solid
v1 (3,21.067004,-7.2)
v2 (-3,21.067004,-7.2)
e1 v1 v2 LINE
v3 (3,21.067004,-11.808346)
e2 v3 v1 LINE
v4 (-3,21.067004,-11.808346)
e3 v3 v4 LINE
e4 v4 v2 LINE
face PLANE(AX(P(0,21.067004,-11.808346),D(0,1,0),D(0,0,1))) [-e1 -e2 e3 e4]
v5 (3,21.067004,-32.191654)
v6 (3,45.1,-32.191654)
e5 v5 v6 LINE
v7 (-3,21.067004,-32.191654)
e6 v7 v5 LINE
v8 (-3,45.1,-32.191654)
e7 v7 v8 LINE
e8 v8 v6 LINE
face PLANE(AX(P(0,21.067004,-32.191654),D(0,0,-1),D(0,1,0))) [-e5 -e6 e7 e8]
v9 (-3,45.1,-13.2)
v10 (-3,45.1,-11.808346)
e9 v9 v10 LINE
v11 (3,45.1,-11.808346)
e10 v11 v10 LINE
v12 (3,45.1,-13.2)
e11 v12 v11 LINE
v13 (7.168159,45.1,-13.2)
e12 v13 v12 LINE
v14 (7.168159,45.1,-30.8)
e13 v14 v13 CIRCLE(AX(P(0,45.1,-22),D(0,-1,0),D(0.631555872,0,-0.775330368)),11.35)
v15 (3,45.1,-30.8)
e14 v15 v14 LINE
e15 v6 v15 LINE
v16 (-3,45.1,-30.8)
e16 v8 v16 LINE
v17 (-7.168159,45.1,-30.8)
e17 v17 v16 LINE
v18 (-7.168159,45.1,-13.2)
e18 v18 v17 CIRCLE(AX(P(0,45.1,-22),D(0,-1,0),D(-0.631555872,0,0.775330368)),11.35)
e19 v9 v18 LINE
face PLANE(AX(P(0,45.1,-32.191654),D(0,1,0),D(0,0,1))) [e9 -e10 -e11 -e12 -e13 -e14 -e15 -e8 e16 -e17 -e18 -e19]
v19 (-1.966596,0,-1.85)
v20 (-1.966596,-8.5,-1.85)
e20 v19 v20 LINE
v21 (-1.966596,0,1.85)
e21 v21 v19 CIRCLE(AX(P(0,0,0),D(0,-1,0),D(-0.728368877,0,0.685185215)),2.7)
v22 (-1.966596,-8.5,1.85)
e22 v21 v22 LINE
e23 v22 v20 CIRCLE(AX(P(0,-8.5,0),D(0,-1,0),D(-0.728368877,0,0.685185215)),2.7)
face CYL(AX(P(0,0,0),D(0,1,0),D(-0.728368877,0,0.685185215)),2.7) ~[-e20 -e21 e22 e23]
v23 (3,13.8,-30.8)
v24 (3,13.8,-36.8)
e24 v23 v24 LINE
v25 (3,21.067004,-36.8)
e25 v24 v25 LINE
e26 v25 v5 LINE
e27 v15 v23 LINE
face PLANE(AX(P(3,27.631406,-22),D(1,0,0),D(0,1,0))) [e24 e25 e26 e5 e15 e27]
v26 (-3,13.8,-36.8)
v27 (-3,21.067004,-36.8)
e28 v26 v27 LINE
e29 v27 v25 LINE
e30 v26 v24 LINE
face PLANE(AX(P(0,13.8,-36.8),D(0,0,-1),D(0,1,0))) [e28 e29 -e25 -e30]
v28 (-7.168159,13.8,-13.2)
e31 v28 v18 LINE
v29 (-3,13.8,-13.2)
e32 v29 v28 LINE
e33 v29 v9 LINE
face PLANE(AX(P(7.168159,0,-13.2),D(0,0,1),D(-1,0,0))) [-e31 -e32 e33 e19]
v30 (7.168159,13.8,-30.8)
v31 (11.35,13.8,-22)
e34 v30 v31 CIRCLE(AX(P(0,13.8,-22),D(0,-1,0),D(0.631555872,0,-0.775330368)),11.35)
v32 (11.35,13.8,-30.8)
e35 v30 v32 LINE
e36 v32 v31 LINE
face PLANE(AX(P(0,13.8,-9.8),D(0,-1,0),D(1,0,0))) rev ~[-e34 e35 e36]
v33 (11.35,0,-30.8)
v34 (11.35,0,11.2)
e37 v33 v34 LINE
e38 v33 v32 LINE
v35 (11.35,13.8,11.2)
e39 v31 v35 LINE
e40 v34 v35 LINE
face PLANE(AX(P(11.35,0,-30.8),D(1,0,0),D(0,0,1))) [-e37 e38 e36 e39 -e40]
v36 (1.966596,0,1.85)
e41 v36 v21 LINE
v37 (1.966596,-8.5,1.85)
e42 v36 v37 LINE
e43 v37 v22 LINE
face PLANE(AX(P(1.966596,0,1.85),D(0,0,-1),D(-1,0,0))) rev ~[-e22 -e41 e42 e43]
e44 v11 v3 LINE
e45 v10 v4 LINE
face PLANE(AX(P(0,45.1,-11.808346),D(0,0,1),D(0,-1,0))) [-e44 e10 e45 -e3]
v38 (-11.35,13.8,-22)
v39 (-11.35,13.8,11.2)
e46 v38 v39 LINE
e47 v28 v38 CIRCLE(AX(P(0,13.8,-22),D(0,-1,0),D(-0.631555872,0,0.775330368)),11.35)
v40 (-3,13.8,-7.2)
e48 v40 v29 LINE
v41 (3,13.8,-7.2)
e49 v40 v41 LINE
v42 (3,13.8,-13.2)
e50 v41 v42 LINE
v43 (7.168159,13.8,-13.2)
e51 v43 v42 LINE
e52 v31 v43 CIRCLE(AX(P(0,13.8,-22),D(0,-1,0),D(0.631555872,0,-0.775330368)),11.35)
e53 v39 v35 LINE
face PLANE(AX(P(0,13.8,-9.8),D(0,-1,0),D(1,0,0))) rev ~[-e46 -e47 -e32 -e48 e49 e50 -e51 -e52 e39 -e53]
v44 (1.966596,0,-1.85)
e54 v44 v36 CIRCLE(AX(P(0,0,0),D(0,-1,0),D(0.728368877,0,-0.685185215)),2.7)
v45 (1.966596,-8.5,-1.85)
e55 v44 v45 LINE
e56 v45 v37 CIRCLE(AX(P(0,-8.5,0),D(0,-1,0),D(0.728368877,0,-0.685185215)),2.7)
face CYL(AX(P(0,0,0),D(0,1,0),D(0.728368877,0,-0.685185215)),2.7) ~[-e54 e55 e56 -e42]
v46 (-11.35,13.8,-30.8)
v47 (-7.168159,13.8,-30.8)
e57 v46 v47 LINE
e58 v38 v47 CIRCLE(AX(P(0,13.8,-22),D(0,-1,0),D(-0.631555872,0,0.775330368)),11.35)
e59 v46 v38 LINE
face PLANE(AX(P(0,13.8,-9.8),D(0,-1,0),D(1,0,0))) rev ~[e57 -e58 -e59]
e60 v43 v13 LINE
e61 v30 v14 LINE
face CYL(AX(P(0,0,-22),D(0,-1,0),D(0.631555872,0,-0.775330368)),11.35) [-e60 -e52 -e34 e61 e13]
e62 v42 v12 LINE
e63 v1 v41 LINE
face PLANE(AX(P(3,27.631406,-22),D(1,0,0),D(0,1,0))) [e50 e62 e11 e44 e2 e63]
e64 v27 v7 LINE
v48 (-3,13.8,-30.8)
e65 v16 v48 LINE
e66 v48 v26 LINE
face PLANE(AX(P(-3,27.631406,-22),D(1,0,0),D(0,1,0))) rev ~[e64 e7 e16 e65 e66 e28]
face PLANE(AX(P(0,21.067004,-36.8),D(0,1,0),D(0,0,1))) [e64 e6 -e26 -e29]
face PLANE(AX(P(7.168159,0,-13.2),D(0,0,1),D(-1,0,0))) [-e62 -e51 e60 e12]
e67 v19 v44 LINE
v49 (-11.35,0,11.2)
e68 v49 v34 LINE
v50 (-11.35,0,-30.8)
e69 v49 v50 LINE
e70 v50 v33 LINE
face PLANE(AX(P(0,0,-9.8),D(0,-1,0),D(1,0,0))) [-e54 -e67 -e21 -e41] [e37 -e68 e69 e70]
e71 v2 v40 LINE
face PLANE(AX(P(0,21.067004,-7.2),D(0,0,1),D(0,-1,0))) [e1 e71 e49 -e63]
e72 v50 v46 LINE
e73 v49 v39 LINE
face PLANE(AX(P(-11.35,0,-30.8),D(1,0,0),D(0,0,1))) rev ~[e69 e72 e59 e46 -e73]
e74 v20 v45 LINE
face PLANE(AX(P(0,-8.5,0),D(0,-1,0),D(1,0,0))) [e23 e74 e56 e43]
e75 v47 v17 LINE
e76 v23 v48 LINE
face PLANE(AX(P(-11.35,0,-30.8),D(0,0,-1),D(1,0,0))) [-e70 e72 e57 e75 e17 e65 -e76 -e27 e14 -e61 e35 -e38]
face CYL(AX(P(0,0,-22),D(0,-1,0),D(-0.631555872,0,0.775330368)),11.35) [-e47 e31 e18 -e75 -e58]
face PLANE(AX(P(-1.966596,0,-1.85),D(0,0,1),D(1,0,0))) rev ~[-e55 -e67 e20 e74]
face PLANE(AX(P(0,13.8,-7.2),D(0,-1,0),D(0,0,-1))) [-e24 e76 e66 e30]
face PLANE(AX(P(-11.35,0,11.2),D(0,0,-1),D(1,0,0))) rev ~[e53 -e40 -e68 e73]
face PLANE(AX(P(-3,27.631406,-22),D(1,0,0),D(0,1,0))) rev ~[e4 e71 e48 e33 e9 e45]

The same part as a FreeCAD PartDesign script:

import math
import FreeCAD as App
import Part
import Sketcher

V = App.Vector
Q = App.Units.Quantity

doc = App.newDocument("Part")
body = doc.addObject("PartDesign::Body", "Body")

# Sketch on XZ plane
sketch1 = body.newObject("Sketcher::SketchObject", "Sketch")
sketch1.AttachmentSupport = (doc.getObject("XZ_Plane"), [""])
sketch1.MapMode = "FlatFace"
sketch1.addGeometry([
    Part.LineSegment(V(-11, 11, 0), V(-11, -31, 0)),
    Part.LineSegment(V(-11, -31, 0), V(11, -31, 0)),
    Part.LineSegment(V(11, -31, 0), V(11, 11, 0)),
    Part.LineSegment(V(11, 11, 0), V(-11, 11, 0)),
], False)
sketch1.addConstraint([
    Sketcher.Constraint("Coincident", 0, 2, 1, 1),
    Sketcher.Constraint("Coincident", 1, 2, 2, 1),
    Sketcher.Constraint("Coincident", 2, 2, 3, 1),
    Sketcher.Constraint("Coincident", 3, 2, 0, 1),
    Sketcher.Constraint("Vertical", 0),
    Sketcher.Constraint("Horizontal", 1),
    Sketcher.Constraint("Vertical", 2),
    Sketcher.Constraint("Horizontal", 3),
    Sketcher.Constraint("DistanceY", 0, 2, 0, 1, Q("42 mm")),
    Sketcher.Constraint("DistanceX", 1, 1, 1, 2, Q("22.7 mm")),
    Sketcher.Constraint("DistanceY", 0, 2, -1, 1, Q("30.8 mm")),
    Sketcher.Constraint("DistanceX", 0, 2, -1, 1, Q("11.35 mm")),
])
pad1 = body.newObject("PartDesign::Pad", "Pad")
pad1.Profile = sketch1
pad1.Length = 13.8
pad1.Reversed = True

# Sketch on XZ plane
sketch2 = body.newObject("Sketcher::SketchObject", "Sketch001")
sketch2.AttachmentSupport = (doc.getObject("XZ_Plane"), [""])
sketch2.MapMode = "FlatFace"
sketch2.addGeometry([
    Part.LineSegment(V(2, 1.9, 0), V(-2, 1.9, 0)),
    Part.ArcOfCircle(Part.Circle(V(0, 0, 0), V(0, 0, 1), 2.7), math.radians(137), math.radians(223)),
    Part.LineSegment(V(-2, -1.9, 0), V(2, -1.9, 0)),
    Part.ArcOfCircle(Part.Circle(V(0, 0, 0), V(0, 0, 1), 2.7), math.radians(-43), math.radians(43)),
], False)
sketch2.addConstraint([
    Sketcher.Constraint("Coincident", 0, 2, 1, 1),
    Sketcher.Constraint("Coincident", 1, 2, 2, 1),
    Sketcher.Constraint("Coincident", 2, 2, 3, 1),
    Sketcher.Constraint("Coincident", 3, 2, 0, 1),
    Sketcher.Constraint("Horizontal", 0),
    Sketcher.Constraint("Horizontal", 2),
    Sketcher.Constraint("Coincident", 1, 3, -1, 1),
    Sketcher.Constraint("Coincident", 3, 3, -1, 1),
    Sketcher.Constraint("Equal", 1, 3),
    Sketcher.Constraint("Vertical", 0, 2, 1, 2),
    Sketcher.Constraint("Radius", 1, Q("2.7 mm")),
    Sketcher.Constraint("DistanceY", 1, 2, 0, 2, Q("3.7 mm")),
])
pad2 = body.newObject("PartDesign::Pad", "Pad001")
pad2.Profile = sketch2
pad2.Length = 8.5

# Sketch on XZ plane
sketch3 = body.newObject("Sketcher::SketchObject", "Sketch002")
sketch3.AttachmentSupport = (doc.getObject("XZ_Plane"), [""])
sketch3.MapMode = "FlatFace"
sketch3.addGeometry([
    Part.LineSegment(V(7, -13, 0), V(-7, -13, 0)),
    Part.ArcOfCircle(Part.Circle(V(0, -22, 0), V(0, 0, 1), 11), math.radians(129), math.radians(231)),
    Part.LineSegment(V(-7, -31, 0), V(7, -31, 0)),
    Part.ArcOfCircle(Part.Circle(V(0, -22, 0), V(0, 0, 1), 11), math.radians(-51), math.radians(51)),
], False)
sketch3.addConstraint([
    Sketcher.Constraint("Coincident", 0, 2, 1, 1),
    Sketcher.Constraint("Coincident", 1, 2, 2, 1),
    Sketcher.Constraint("Coincident", 2, 2, 3, 1),
    Sketcher.Constraint("Coincident", 3, 2, 0, 1),
    Sketcher.Constraint("Horizontal", 0),
    Sketcher.Constraint("Horizontal", 2),
    Sketcher.Constraint("Coincident", 3, 3, 1, 3),
    Sketcher.Constraint("Equal", 1, 3),
    Sketcher.Constraint("PointOnObject", 1, 3, -2),
    Sketcher.Constraint("Vertical", 0, 2, 1, 2),
    Sketcher.Constraint("Radius", 1, Q("11.35 mm")),
    Sketcher.Constraint("DistanceY", 1, 3, -1, 1, Q("22 mm")),
    Sketcher.Constraint("DistanceY", 0, 2, -1, 1, Q("13.2 mm")),
])
pad3 = body.newObject("PartDesign::Pad", "Pad002")
pad3.Profile = sketch3
pad3.Length = 45.1
pad3.Reversed = True

# Sketch on YZ plane
sketch4 = body.newObject("Sketcher::SketchObject", "Sketch003")
sketch4.AttachmentSupport = (doc.getObject("YZ_Plane"), [""])
sketch4.MapMode = "FlatFace"
sketch4.addGeometry([
    Part.LineSegment(V(21.1, -7.2, 0), V(13.8, -7.2, 0)),  # 0
    Part.LineSegment(V(13.8, -7.2, 0), V(13.8, -36.8, 0)),  # 1
    Part.LineSegment(V(13.8, -36.8, 0), V(21.1, -36.8, 0)),  # 2
    Part.LineSegment(V(21.1, -36.8, 0), V(21.1, -32.2, 0)),  # 3
    Part.LineSegment(V(21.1, -32.2, 0), V(45.1, -32.2, 0)),  # 4
    Part.LineSegment(V(45.1, -32.2, 0), V(45.1, -11.8, 0)),  # 5
    Part.LineSegment(V(45.1, -11.8, 0), V(21.1, -11.8, 0)),  # 6
    Part.LineSegment(V(21.1, -11.8, 0), V(21.1, -7.2, 0)),  # 7
], False)
sketch4.addConstraint([
    Sketcher.Constraint("Coincident", 0, 2, 1, 1),
    Sketcher.Constraint("Coincident", 1, 2, 2, 1),
    Sketcher.Constraint("Coincident", 2, 2, 3, 1),
    Sketcher.Constraint("Coincident", 3, 2, 4, 1),
    Sketcher.Constraint("Coincident", 4, 2, 5, 1),
    Sketcher.Constraint("Coincident", 5, 2, 6, 1),
    Sketcher.Constraint("Coincident", 6, 2, 7, 1),
    Sketcher.Constraint("Coincident", 7, 2, 0, 1),
    Sketcher.Constraint("Horizontal", 0),
    Sketcher.Constraint("Vertical", 1),
    Sketcher.Constraint("Horizontal", 2),
    Sketcher.Constraint("Vertical", 3),
    Sketcher.Constraint("Horizontal", 4),
    Sketcher.Constraint("Vertical", 5),
    Sketcher.Constraint("Horizontal", 6),
    Sketcher.Constraint("Vertical", 7),
    Sketcher.Constraint("Vertical", 3, 2, 6, 2),
    Sketcher.Constraint("Equal", 3, 7),
    Sketcher.Constraint("DistanceY", 1, 2, 1, 1, Q("29.6 mm")),
    Sketcher.Constraint("DistanceX", -1, 1, 0, 2, Q("13.8 mm")),
    Sketcher.Constraint("DistanceY", 0, 2, -1, 1, Q("7.2 mm")),
    Sketcher.Constraint("DistanceX", -1, 1, 4, 2, Q("45.1 mm")),
    Sketcher.Constraint("DistanceX", 0, 2, 0, 1, Q("7.267004 mm")),
    Sketcher.Constraint("DistanceY", 3, 1, 3, 2, Q("4.608346 mm")),
])
pad4 = body.newObject("PartDesign::Pad", "Pad003")
pad4.Profile = sketch4
pad4.Length = 6
pad4.Midplane = True

doc.recompute()
